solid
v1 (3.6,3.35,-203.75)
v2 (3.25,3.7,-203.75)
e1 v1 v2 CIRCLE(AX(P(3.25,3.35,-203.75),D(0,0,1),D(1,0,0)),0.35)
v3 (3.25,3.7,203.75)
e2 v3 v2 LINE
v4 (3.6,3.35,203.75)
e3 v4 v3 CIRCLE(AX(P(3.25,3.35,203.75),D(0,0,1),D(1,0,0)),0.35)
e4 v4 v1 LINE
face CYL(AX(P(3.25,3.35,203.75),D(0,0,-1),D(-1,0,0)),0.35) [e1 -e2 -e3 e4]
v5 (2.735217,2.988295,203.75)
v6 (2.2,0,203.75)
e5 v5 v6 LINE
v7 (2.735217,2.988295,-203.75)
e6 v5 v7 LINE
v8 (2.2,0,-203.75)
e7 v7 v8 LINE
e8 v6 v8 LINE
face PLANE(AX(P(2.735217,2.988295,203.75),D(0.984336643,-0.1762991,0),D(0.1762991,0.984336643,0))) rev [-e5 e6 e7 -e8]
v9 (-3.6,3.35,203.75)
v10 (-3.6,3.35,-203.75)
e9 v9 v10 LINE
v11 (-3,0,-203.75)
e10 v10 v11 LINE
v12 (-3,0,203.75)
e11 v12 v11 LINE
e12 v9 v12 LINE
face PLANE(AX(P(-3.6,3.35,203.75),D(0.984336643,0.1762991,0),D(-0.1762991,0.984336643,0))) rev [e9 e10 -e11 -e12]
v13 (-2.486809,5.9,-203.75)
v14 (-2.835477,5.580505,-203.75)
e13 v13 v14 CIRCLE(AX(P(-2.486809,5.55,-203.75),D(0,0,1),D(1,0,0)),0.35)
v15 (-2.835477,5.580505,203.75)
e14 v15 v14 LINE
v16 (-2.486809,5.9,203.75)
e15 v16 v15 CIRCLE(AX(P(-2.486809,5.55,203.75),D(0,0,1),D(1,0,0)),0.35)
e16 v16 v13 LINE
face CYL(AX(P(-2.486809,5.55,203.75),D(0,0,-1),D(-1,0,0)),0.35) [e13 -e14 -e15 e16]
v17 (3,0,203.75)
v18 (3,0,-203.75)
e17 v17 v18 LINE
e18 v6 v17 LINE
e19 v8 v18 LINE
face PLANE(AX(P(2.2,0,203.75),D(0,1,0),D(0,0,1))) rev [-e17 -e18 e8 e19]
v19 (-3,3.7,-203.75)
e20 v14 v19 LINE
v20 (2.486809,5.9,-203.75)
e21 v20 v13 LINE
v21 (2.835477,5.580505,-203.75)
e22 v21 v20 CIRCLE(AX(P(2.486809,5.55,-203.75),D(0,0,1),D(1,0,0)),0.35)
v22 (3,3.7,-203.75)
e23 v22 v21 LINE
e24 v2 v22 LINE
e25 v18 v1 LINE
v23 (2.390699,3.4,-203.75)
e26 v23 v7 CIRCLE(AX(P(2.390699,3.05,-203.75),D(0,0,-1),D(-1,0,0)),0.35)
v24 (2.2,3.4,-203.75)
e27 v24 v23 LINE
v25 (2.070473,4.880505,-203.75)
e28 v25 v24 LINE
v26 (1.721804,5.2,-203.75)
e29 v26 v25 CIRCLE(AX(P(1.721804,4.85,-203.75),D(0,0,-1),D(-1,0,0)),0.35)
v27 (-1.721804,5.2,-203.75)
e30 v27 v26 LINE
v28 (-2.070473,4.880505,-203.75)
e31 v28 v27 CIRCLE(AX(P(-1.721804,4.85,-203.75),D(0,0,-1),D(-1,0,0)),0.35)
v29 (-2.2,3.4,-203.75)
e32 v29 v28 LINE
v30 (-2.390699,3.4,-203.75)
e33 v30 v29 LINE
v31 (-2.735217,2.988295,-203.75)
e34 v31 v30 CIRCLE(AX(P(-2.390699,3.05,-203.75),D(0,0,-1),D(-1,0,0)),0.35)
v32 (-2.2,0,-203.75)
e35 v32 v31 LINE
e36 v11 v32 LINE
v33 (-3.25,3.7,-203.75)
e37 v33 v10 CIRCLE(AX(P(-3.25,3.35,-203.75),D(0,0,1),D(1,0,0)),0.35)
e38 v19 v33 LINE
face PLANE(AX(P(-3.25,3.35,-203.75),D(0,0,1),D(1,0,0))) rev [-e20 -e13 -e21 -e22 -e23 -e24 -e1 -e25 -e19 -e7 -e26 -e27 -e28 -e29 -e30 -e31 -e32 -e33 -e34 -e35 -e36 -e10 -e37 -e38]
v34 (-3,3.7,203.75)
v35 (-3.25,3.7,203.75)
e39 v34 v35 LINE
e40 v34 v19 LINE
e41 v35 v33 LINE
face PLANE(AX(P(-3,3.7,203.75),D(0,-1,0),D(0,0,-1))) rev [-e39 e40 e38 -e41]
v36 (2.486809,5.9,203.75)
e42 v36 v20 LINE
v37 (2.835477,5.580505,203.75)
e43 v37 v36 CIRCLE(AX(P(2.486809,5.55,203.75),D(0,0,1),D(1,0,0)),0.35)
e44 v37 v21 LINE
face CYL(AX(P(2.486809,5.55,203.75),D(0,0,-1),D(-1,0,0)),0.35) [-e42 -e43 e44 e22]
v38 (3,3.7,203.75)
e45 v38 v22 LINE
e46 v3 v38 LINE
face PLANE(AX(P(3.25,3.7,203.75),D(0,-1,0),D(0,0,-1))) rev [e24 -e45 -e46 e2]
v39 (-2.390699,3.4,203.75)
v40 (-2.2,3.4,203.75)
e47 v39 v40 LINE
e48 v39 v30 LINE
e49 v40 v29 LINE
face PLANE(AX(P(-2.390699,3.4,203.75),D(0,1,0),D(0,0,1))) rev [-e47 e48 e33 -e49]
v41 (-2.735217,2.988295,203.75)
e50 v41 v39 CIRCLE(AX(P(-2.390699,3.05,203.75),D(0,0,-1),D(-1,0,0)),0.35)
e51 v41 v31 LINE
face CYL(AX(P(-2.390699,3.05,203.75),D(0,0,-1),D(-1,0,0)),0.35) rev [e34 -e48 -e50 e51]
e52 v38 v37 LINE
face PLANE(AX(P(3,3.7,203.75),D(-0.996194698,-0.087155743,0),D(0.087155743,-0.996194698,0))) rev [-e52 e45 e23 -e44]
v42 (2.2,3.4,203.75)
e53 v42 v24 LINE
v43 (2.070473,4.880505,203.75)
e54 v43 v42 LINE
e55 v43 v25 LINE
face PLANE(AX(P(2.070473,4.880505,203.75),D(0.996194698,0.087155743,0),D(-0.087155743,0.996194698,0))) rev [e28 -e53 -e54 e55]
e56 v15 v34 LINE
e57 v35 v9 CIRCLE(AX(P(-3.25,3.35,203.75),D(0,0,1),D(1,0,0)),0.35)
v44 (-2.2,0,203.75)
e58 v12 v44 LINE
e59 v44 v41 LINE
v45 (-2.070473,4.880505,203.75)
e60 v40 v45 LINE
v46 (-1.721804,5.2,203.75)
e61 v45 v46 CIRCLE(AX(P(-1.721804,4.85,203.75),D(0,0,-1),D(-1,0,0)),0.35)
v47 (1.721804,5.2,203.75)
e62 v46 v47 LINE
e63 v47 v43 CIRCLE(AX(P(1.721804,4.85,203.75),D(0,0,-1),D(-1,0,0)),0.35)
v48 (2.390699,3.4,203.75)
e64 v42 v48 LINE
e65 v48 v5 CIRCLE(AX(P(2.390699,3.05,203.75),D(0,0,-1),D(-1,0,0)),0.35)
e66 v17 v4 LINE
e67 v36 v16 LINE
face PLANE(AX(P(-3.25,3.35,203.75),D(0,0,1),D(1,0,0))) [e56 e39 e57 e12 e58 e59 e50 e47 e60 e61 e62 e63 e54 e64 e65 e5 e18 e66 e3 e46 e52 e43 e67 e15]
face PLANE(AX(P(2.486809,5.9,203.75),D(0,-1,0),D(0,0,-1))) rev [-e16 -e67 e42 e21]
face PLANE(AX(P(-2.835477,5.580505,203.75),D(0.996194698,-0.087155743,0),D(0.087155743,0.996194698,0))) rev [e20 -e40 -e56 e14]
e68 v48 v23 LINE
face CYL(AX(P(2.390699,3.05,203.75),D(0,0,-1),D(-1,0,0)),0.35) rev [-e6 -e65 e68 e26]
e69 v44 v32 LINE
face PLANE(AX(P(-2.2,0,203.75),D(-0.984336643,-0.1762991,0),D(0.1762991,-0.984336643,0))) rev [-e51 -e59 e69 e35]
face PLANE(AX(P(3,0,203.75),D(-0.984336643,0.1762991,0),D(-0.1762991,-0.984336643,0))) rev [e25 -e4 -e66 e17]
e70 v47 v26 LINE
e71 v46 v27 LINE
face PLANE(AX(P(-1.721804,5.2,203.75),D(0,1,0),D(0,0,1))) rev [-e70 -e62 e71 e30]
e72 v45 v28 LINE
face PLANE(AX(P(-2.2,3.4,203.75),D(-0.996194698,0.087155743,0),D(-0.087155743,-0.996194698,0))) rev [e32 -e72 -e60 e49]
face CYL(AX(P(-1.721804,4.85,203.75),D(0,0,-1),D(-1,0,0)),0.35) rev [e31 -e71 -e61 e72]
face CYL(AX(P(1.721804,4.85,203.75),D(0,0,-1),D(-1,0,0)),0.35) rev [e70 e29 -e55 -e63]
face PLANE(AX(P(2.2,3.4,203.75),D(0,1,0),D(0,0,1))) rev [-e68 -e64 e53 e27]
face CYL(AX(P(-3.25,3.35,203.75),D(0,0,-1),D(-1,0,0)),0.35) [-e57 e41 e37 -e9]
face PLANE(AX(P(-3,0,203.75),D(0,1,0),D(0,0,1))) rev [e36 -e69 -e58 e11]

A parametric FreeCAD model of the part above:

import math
import FreeCAD as App
import Part
import Sketcher

V = App.Vector
Q = App.Units.Quantity

doc = App.newDocument("Part")
body = doc.addObject("PartDesign::Body", "Body")

# Sketch on XY plane
sketch1 = body.newObject("Sketcher::SketchObject", "Sketch")
sketch1.AttachmentSupport = (doc.getObject("XY_Plane"), [""])
sketch1.MapMode = "FlatFace"
sketch1.addGeometry([
    Part.LineSegment(V(-3.6, 3.35, 0), V(-3, 0, 0)),  # 0
    Part.LineSegment(V(-3, 0, 0), V(-2.2, 0, 0)),  # 1
    Part.LineSegment(V(-2.2, 0, 0), V(-2.74, 2.99, 0)),  # 2
    Part.ArcOfCircle(Part.Circle(V(-2.39, 3.05, 0), V(0, 0, 1), 0.35), math.radians(90), math.radians(190)),  # 3
    Part.LineSegment(V(-2.39, 3.4, 0), V(-2.2, 3.4, 0)),  # 4
    Part.LineSegment(V(-2.2, 3.4, 0), V(-2.07, 4.88, 0)),  # 5
    Part.ArcOfCircle(Part.Circle(V(-1.72, 4.85, 0), V(0, 0, 1), 0.35), math.radians(90), math.radians(175)),  # 6
    Part.LineSegment(V(-1.72, 5.2, 0), V(1.72, 5.2, 0)),  # 7
    Part.ArcOfCircle(Part.Circle(V(1.72, 4.85, 0), V(0, 0, 1), 0.35), math.radians(5), math.radians(90)),  # 8
    Part.LineSegment(V(2.07, 4.88, 0), V(2.2, 3.4, 0)),  # 9
    Part.LineSegment(V(2.2, 3.4, 0), V(2.39, 3.4, 0)),  # 10
    Part.ArcOfCircle(Part.Circle(V(2.39, 3.05, 0), V(0, 0, 1), 0.35), math.radians(-10), math.radians(90)),  # 11
    Part.LineSegment(V(2.74, 2.99, 0), V(2.2, 0, 0)),  # 12
    Part.LineSegment(V(2.2, 0, 0), V(3, 0, 0)),  # 13
    Part.LineSegment(V(3, 0, 0), V(3.6, 3.35, 0)),  # 14
    Part.ArcOfCircle(Part.Circle(V(3.25, 3.35, 0), V(0, 0, 1), 0.35), math.radians(0), math.radians(90)),  # 15
    Part.LineSegment(V(3.25, 3.7, 0), V(3, 3.7, 0)),  # 16
    Part.LineSegment(V(3, 3.7, 0), V(2.84, 5.58, 0)),  # 17
    Part.ArcOfCircle(Part.Circle(V(2.49, 5.55, 0), V(0, 0, 1), 0.35), math.radians(5), math.radians(90)),  # 18
    Part.LineSegment(V(2.49, 5.9, 0), V(-2.49, 5.9, 0)),  # 19
    Part.ArcOfCircle(Part.Circle(V(-2.49, 5.55, 0), V(0, 0, 1), 0.35), math.radians(90), math.radians(175)),  # 20
    Part.LineSegment(V(-2.84, 5.58, 0), V(-3, 3.7, 0)),  # 21
    Part.LineSegment(V(-3, 3.7, 0), V(-3.25, 3.7, 0)),  # 22
    Part.ArcOfCircle(Part.Circle(V(-3.25, 3.35, 0), V(0, 0, 1), 0.35), math.radians(90), math.radians(180)),  # 23
], False)
sketch1.addConstraint([
    Sketcher.Constraint("Coincident", 0, 2, 1, 1),
    Sketcher.Constraint("Coincident", 1, 2, 2, 1),
    Sketcher.Constraint("Tangent", 2, 2, 3, 2),
    Sketcher.Constraint("Tangent", 3, 1, 4, 1),
    Sketcher.Constraint("Coincident", 4, 2, 5, 1),
    Sketcher.Constraint("Tangent", 5, 2, 6, 2),
    Sketcher.Constraint("Tangent", 6, 1, 7, 1),
    Sketcher.Constraint("Tangent", 7, 2, 8, 2),
    Sketcher.Constraint("Tangent", 8, 1, 9, 1),
    Sketcher.Constraint("Coincident", 9, 2, 10, 1),
    Sketcher.Constraint("Tangent", 10, 2, 11, 2),
    Sketcher.Constraint("Tangent", 11, 1, 12, 1),
    Sketcher.Constraint("Coincident", 12, 2, 13, 1),
    Sketcher.Constraint("Coincident", 13, 2, 14, 1),
    Sketcher.Constraint("Coincident", 14, 2, 15, 1),
    Sketcher.Constraint("Tangent", 15, 2, 16, 1),
    Sketcher.Constraint("Coincident", 16, 2, 17, 1),
    Sketcher.Constraint("Tangent", 17, 2, 18, 1),
    Sketcher.Constraint("Tangent", 18, 2, 19, 1),
    Sketcher.Constraint("Tangent", 19, 2, 20, 1),
    Sketcher.Constraint("Tangent", 20, 2, 21, 1),
    Sketcher.Constraint("Coincident", 21, 2, 22, 1),
    Sketcher.Constraint("Tangent", 22, 2, 23, 1),
    Sketcher.Constraint("Coincident", 23, 2, 0, 1),
    Sketcher.Constraint("Horizontal", 1),
    Sketcher.Constraint("Horizontal", 4),
    Sketcher.Constraint("Horizontal", 7),
    Sketcher.Constraint("Horizontal", 10),
    Sketcher.Constraint("Horizontal", 13),
    Sketcher.Constraint("Horizontal", 16),
    Sketcher.Constraint("Horizontal", 19),
    Sketcher.Constraint("Horizontal", 22),
    Sketcher.Constraint("Equal", 3, 6),
    Sketcher.Constraint("Equal", 6, 8),
    Sketcher.Constraint("Equal", 8, 11),
    Sketcher.Constraint("Equal", 11, 15),
    Sketcher.Constraint("Equal", 15, 18),
    Sketcher.Constraint("Equal", 18, 20),
    Sketcher.Constraint("Equal", 20, 23),
    Sketcher.Constraint("Symmetric", 1, 2, 12, 2, -1, 1),
    Sketcher.Constraint("Symmetric", 3, 3, 11, 3, -2),
    Sketcher.Constraint("Symmetric", 15, 3, 23, 3, -2),
    Sketcher.Constraint("Symmetric", 5, 2, 8, 1, -2),
    Sketcher.Constraint("Symmetric", 0, 2, 13, 2, -2),
    Sketcher.Constraint("Symmetric", 17, 2, 20, 2, -2),
    Sketcher.Constraint("Parallel", 0, 2),
    Sketcher.Constraint("Parallel", 12, 14),
    Sketcher.Constraint("Parallel", 9, 17),
    Sketcher.Constraint("Horizontal", 23, 3, 14, 2),
    Sketcher.Constraint("Vertical", 1, 2, 4, 2),
    Sketcher.Constraint("Vertical", 13, 2, 16, 2),
    Sketcher.Constraint("Angle", 5, Q("85 deg")),
    Sketcher.Constraint("Radius", 3, Q("0.35 mm")),
    Sketcher.Constraint("DistanceX", 1, 1, 1, 2, Q("0.8 mm")),
    Sketcher.Constraint("DistanceX", 0, 2, -1, 1, Q("3 mm")),
    Sketcher.Constraint("DistanceX", 16, 2, 16, 1, Q("0.25 mm")),
    Sketcher.Constraint("DistanceY", -1, 1, 3, 1, Q("3.4 mm")),
    Sketcher.Constraint("DistanceY", -1, 1, 6, 1, Q("5.2 mm")),
    Sketcher.Constraint("DistanceY", -1, 1, 15, 2, Q("3.7 mm")),
    Sketcher.Constraint("DistanceY", -1, 1, 18, 2, Q("5.9 mm")),
])
pad1 = body.newObject("PartDesign::Pad", "Pad")
pad1.Profile = sketch1
pad1.Length = 407.5
pad1.Midplane = True

doc.recompute()
